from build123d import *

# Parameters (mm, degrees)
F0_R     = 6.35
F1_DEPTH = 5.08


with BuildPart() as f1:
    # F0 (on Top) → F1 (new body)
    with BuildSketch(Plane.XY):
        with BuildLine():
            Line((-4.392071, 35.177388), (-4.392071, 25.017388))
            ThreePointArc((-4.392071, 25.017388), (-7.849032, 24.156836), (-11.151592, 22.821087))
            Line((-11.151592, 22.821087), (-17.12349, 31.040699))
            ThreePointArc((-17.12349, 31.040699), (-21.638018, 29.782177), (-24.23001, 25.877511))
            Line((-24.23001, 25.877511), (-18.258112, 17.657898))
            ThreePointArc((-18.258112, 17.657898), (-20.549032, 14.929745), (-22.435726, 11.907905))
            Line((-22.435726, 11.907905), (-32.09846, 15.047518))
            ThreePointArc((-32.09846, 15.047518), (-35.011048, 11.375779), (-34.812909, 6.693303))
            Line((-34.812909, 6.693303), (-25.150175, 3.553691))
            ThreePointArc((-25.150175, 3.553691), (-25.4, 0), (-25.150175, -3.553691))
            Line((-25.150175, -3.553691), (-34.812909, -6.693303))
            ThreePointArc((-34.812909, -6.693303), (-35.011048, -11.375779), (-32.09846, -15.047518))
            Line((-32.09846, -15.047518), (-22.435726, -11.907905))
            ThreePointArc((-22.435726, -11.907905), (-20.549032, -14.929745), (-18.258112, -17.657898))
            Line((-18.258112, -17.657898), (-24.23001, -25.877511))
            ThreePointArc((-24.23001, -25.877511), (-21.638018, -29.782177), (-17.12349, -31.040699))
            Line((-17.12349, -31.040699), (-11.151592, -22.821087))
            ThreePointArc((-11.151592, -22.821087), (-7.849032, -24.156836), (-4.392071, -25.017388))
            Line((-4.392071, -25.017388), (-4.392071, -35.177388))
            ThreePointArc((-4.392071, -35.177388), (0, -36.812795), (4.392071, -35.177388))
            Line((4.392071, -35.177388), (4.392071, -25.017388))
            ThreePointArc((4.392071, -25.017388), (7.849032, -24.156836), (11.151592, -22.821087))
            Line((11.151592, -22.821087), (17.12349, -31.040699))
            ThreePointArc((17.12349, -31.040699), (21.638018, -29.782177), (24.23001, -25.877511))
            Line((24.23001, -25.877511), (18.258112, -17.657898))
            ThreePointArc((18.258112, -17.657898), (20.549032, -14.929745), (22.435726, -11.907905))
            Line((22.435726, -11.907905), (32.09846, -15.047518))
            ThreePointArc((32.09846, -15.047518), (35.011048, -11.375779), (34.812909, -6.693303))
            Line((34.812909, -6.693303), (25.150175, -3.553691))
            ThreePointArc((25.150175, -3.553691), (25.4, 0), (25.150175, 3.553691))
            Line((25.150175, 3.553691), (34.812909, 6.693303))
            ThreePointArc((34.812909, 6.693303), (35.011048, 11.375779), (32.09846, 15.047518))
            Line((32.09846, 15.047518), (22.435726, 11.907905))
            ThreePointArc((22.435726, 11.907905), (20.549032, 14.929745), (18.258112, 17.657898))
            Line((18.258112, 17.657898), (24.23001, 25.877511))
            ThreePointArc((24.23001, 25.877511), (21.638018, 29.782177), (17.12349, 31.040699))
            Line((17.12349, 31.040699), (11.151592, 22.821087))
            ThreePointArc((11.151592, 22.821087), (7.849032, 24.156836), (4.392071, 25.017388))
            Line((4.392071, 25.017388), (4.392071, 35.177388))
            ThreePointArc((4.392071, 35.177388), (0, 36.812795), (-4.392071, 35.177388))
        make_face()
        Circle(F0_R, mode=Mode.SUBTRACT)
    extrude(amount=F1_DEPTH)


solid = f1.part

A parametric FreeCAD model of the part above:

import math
import FreeCAD as App
import Part
import Sketcher
Q = App.Units.Quantity

doc = App.newDocument("Part")
body = doc.addObject("PartDesign::Body", "Body")

# Sketch on XY plane
sketch1 = body.newObject("Sketcher::SketchObject", "Sketch")
sketch1.AttachmentSupport = (doc.getObject("XY_Plane"), [""])
sketch1.MapMode = "FlatFace"
sketch1.addGeometry([
    Part.LineSegment(App.Vector(-4.392071, 35.177388, 0), App.Vector(-4.392071, 25.017388, 0)),  # 0
    Part.ArcOfCircle(Part.Circle(App.Vector(-0.000018, 0.000049, 0), App.Vector(0, 0, 1), 25.399949), math.radians(99.957395), math.radians(116.042597)),  # 1
    Part.LineSegment(App.Vector(-11.151592, 22.821087, 0), App.Vector(-17.12349, 31.040699, 0)),  # 2
    Part.ArcOfCircle(Part.Circle(App.Vector(-17.690802, 24.3493, 0), App.Vector(0, 0, 1), 6.715405), math.radians(85.153921), math.radians(166.846069)),  # 3
    Part.LineSegment(App.Vector(-24.23001, 25.877511, 0), App.Vector(-18.258112, 17.657898, 0)),  # 4
    Part.ArcOfCircle(Part.Circle(App.Vector(0.000012, -0.000008, 0), App.Vector(0, 0, 1), 25.400014), math.radians(135.957422), math.radians(152.042584)),  # 5
    Part.LineSegment(App.Vector(-22.435726, 11.907905, 0), App.Vector(-32.09846, 15.047518, 0)),  # 6
    Part.ArcOfCircle(Part.Circle(App.Vector(-28.624315, 9.300604, 0), App.Vector(0, 0, 1), 6.715408), math.radians(121.153946), math.radians(202.846054)),  # 7
    Part.LineSegment(App.Vector(-34.812909, 6.693303, 0), App.Vector(-25.150175, 3.553691, 0)),  # 8
    Part.ArcOfCircle(Part.Circle(App.Vector(0.000045, 0, 0), App.Vector(0, 0, 1), 25.400045), math.radians(171.957428), math.radians(188.042572)),  # 9
    Part.LineSegment(App.Vector(-25.150175, -3.553691, 0), App.Vector(-34.812909, -6.693303, 0)),  # 10
    Part.ArcOfCircle(Part.Circle(App.Vector(-28.624315, -9.300604, 0), App.Vector(0, 0, 1), 6.715408), math.radians(157.153946), math.radians(238.846054)),  # 11
    Part.LineSegment(App.Vector(-32.09846, -15.047518, 0), App.Vector(-22.435726, -11.907905, 0)),  # 12
    Part.ArcOfCircle(Part.Circle(App.Vector(0.000012, 0.000008, 0), App.Vector(0, 0, 1), 25.400014), math.radians(-152.042584), math.radians(-135.957422)),  # 13
    Part.LineSegment(App.Vector(-18.258112, -17.657898, 0), App.Vector(-24.23001, -25.877511, 0)),  # 14
    Part.ArcOfCircle(Part.Circle(App.Vector(-17.690802, -24.3493, 0), App.Vector(0, 0, 1), 6.715405), math.radians(-166.846069), math.radians(-85.153921)),  # 15
    Part.LineSegment(App.Vector(-17.12349, -31.040699, 0), App.Vector(-11.151592, -22.821087, 0)),  # 16
    Part.ArcOfCircle(Part.Circle(App.Vector(-0.000018, -0.000049, 0), App.Vector(0, 0, 1), 25.399949), math.radians(-116.042597), math.radians(-99.957395)),  # 17
    Part.LineSegment(App.Vector(-4.392071, -25.017388, 0), App.Vector(-4.392071, -35.177388, 0)),  # 18
    Part.ArcOfCircle(Part.Circle(App.Vector(0, -30.097389, 0), App.Vector(0, 0, 1), 6.715406), math.radians(-130.846073), math.radians(-49.153927)),  # 19
    Part.LineSegment(App.Vector(4.392071, -35.177388, 0), App.Vector(4.392071, -25.017388, 0)),  # 20
    Part.ArcOfCircle(Part.Circle(App.Vector(0.000018, -0.000049, 0), App.Vector(0, 0, 1), 25.399949), math.radians(-80.042605), math.radians(-63.957403)),  # 21
    Part.LineSegment(App.Vector(11.151592, -22.821087, 0), App.Vector(17.12349, -31.040699, 0)),  # 22
    Part.ArcOfCircle(Part.Circle(App.Vector(17.690802, -24.3493, 0), App.Vector(0, 0, 1), 6.715405), math.radians(-94.846079), math.radians(-13.153931)),  # 23
    Part.LineSegment(App.Vector(24.23001, -25.877511, 0), App.Vector(18.258112, -17.657898, 0)),  # 24
    Part.ArcOfCircle(Part.Circle(App.Vector(-0.000012, 0.000008, 0), App.Vector(0, 0, 1), 25.400014), math.radians(-44.042578), math.radians(-27.957416)),  # 25
    Part.LineSegment(App.Vector(22.435726, -11.907905, 0), App.Vector(32.09846, -15.047518, 0)),  # 26
    Part.ArcOfCircle(Part.Circle(App.Vector(28.624315, -9.300604, 0), App.Vector(0, 0, 1), 6.715408), math.radians(-58.846054), math.radians(22.846054)),  # 27
    Part.LineSegment(App.Vector(34.812909, -6.693303, 0), App.Vector(25.150175, -3.553691, 0)),  # 28
    Part.ArcOfCircle(Part.Circle(App.Vector(-0.000045, 0, 0), App.Vector(0, 0, 1), 25.400045), math.radians(-8.042572), math.radians(8.042572)),  # 29
    Part.LineSegment(App.Vector(25.150175, 3.553691, 0), App.Vector(34.812909, 6.693303, 0)),  # 30
    Part.ArcOfCircle(Part.Circle(App.Vector(28.624315, 9.300604, 0), App.Vector(0, 0, 1), 6.715408), math.radians(-22.846054), math.radians(58.846054)),  # 31
    Part.LineSegment(App.Vector(32.09846, 15.047518, 0), App.Vector(22.435726, 11.907905, 0)),  # 32
    Part.ArcOfCircle(Part.Circle(App.Vector(-0.000012, -0.000008, 0), App.Vector(0, 0, 1), 25.400014), math.radians(27.957416), math.radians(44.042578)),  # 33
    Part.LineSegment(App.Vector(18.258112, 17.657898, 0), App.Vector(24.23001, 25.877511, 0)),  # 34
    Part.ArcOfCircle(Part.Circle(App.Vector(17.690802, 24.3493, 0), App.Vector(0, 0, 1), 6.715405), math.radians(13.153931), math.radians(94.846079)),  # 35
    Part.LineSegment(App.Vector(17.12349, 31.040699, 0), App.Vector(11.151592, 22.821087, 0)),  # 36
    Part.ArcOfCircle(Part.Circle(App.Vector(0.000018, 0.000049, 0), App.Vector(0, 0, 1), 25.399949), math.radians(63.957403), math.radians(80.042605)),  # 37
    Part.LineSegment(App.Vector(4.392071, 25.017388, 0), App.Vector(4.392071, 35.177388, 0)),  # 38
    Part.ArcOfCircle(Part.Circle(App.Vector(0, 30.097389, 0), App.Vector(0, 0, 1), 6.715406), math.radians(49.153927), math.radians(130.846073)),  # 39
    Part.Circle(App.Vector(0, 0, 0), App.Vector(0, 0, 1), 6.35),  # 40
], False)
sketch1.addConstraint([
    Sketcher.Constraint("Coincident", 0, 2, 1, 1),
    Sketcher.Constraint("Coincident", 1, 2, 2, 1),
    Sketcher.Constraint("Coincident", 2, 2, 3, 1),
    Sketcher.Constraint("Coincident", 3, 2, 4, 1),
    Sketcher.Constraint("Coincident", 4, 2, 5, 1),
    Sketcher.Constraint("Coincident", 5, 2, 6, 1),
    Sketcher.Constraint("Coincident", 6, 2, 7, 1),
    Sketcher.Constraint("Coincident", 7, 2, 8, 1),
    Sketcher.Constraint("Coincident", 8, 2, 9, 1),
    Sketcher.Constraint("Coincident", 9, 2, 10, 1),
    Sketcher.Constraint("Coincident", 10, 2, 11, 1),
    Sketcher.Constraint("Coincident", 11, 2, 12, 1),
    Sketcher.Constraint("Coincident", 12, 2, 13, 1),
    Sketcher.Constraint("Coincident", 13, 2, 14, 1),
    Sketcher.Constraint("Coincident", 14, 2, 15, 1),
    Sketcher.Constraint("Coincident", 15, 2, 16, 1),
    Sketcher.Constraint("Coincident", 16, 2, 17, 1),
    Sketcher.Constraint("Coincident", 17, 2, 18, 1),
    Sketcher.Constraint("Coincident", 18, 2, 19, 1),
    Sketcher.Constraint("Coincident", 19, 2, 20, 1),
    Sketcher.Constraint("Coincident", 20, 2, 21, 1),
    Sketcher.Constraint("Coincident", 21, 2, 22, 1),
    Sketcher.Constraint("Coincident", 22, 2, 23, 1),
    Sketcher.Constraint("Coincident", 23, 2, 24, 1),
    Sketcher.Constraint("Coincident", 24, 2, 25, 1),
    Sketcher.Constraint("Coincident", 25, 2, 26, 1),
    Sketcher.Constraint("Coincident", 26, 2, 27, 1),
    Sketcher.Constraint("Coincident", 27, 2, 28, 1),
    Sketcher.Constraint("Coincident", 28, 2, 29, 1),
    Sketcher.Constraint("Coincident", 29, 2, 30, 1),
    Sketcher.Constraint("Coincident", 30, 2, 31, 1),
    Sketcher.Constraint("Coincident", 31, 2, 32, 1),
    Sketcher.Constraint("Coincident", 32, 2, 33, 1),
    Sketcher.Constraint("Coincident", 33, 2, 34, 1),
    Sketcher.Constraint("Coincident", 34, 2, 35, 1),
    Sketcher.Constraint("Coincident", 35, 2, 36, 1),
    Sketcher.Constraint("Coincident", 36, 2, 37, 1),
    Sketcher.Constraint("Coincident", 37, 2, 38, 1),
    Sketcher.Constraint("Coincident", 38, 2, 39, 1),
    Sketcher.Constraint("Coincident", 39, 2, 0, 1),
    Sketcher.Constraint("Vertical", 0),
    Sketcher.Constraint("Vertical", 18),
    Sketcher.Constraint("Vertical", 20),
    Sketcher.Constraint("Vertical", 38),
    Sketcher.Constraint("Coincident", 40, 3, -1, 1),
    Sketcher.Constraint("Equal", 7, 11),
    Sketcher.Constraint("Equal", 5, 13),
    Sketcher.Constraint("Equal", 3, 15),
    Sketcher.Constraint("Equal", 1, 17),
    Sketcher.Constraint("Equal", 15, 19),
    Sketcher.Constraint("Equal", 17, 21),
    Sketcher.Constraint("Equal", 19, 23),
    Sketcher.Constraint("Equal", 13, 25),
    Sketcher.Constraint("Equal", 11, 27),
    Sketcher.Constraint("Equal", 9, 29),
    Sketcher.Constraint("Equal", 27, 31),
    Sketcher.Constraint("Equal", 25, 33),
    Sketcher.Constraint("Equal", 23, 35),
    Sketcher.Constraint("Equal", 21, 37),
    Sketcher.Constraint("Equal", 35, 39),
    Sketcher.Constraint("Symmetric", 1, 3, 21, 3, -1, 1),
    Sketcher.Constraint("Symmetric", 3, 3, 23, 3, -1, 1),
    Sketcher.Constraint("Symmetric", 5, 3, 25, 3, -1, 1),
    Sketcher.Constraint("Symmetric", 7, 3, 27, 3, -1, 1),
    Sketcher.Constraint("Symmetric", 9, 3, 29, 3, -1, 1),
    Sketcher.Constraint("Symmetric", 11, 3, 31, 3, -1, 1),
    Sketcher.Constraint("Symmetric", 13, 3, 33, 3, -1, 1),
    Sketcher.Constraint("Symmetric", 15, 3, 35, 3, -1, 1),
    Sketcher.Constraint("Symmetric", 17, 3, 37, 3, -1, 1),
    Sketcher.Constraint("Symmetric", 19, 3, 39, 3, -1, 1),
    Sketcher.Constraint("Symmetric", 17, 3, 21, 3, -2),
    Sketcher.Constraint("Symmetric", 15, 3, 23, 3, -2),
    Sketcher.Constraint("Symmetric", 13, 3, 25, 3, -2),
    Sketcher.Constraint("Symmetric", 11, 3, 27, 3, -2),
    Sketcher.Constraint("Symmetric", 18, 2, 19, 2, -2),
    Sketcher.Constraint("Symmetric", 9, 2, 28, 2, -2),
    Sketcher.Constraint("Parallel", 2, 4),
    Sketcher.Constraint("Parallel", 6, 8),
    Sketcher.Constraint("Parallel", 10, 12),
    Sketcher.Constraint("Parallel", 14, 16),
    Sketcher.Constraint("Parallel", 4, 22),
    Sketcher.Constraint("Parallel", 22, 24),
    Sketcher.Constraint("Parallel", 8, 26),
    Sketcher.Constraint("Parallel", 26, 28),
    Sketcher.Constraint("Parallel", 12, 30),
    Sketcher.Constraint("Parallel", 30, 32),
    Sketcher.Constraint("Parallel", 16, 34),
    Sketcher.Constraint("Parallel", 34, 36),
    Sketcher.Constraint("Horizontal", 16, 2, 21, 2),
    Sketcher.Constraint("Horizontal", 15, 2, 22, 2),
    Sketcher.Constraint("Horizontal", 14, 2, 23, 2),
    Sketcher.Constraint("Horizontal", 12, 2, 25, 2),
    Sketcher.Constraint("Horizontal", 11, 2, 26, 2),
    Sketcher.Constraint("Horizontal", 8, 2, 29, 2),
    Sketcher.Constraint("Horizontal", 6, 2, 31, 2),
    Sketcher.Constraint("Horizontal", 4, 2, 33, 2),
    Sketcher.Constraint("Horizontal", 2, 2, 35, 2),
    Sketcher.Constraint("Horizontal", 0, 2, 37, 2),
    Sketcher.Constraint("Vertical", 8, 2, 9, 2),
    Sketcher.Constraint("Vertical", 6, 2, 11, 2),
    Sketcher.Constraint("Vertical", 4, 2, 13, 2),
    Sketcher.Constraint("Vertical", 2, 2, 15, 2),
    Sketcher.Constraint("Vertical", 0, 2, 17, 2),
    Sketcher.Constraint("Equal", 2, 4),
    Sketcher.Constraint("Equal", 4, 6),
    Sketcher.Constraint("Equal", 6, 8),
    Sketcher.Constraint("Diameter", 40, Q("0.5 in")),
    Sketcher.Constraint("DistanceY", 0, 2, 0, 1, Q("0.4 in")),
    Sketcher.Constraint("Angle", 2, Q("126.000001 deg")),
    Sketcher.Constraint("Angle", 6, Q("161.999998 deg")),
    Sketcher.Constraint("Distance", 2, Q("0.4 in")),
    Sketcher.Constraint("Radius", 1, Q("25.399949 mm")),
    Sketcher.Constraint("Radius", 7, Q("6.715408 mm")),
    Sketcher.Constraint("Radius", 3, Q("6.715405 mm")),
    Sketcher.Constraint("Radius", 5, Q("25.400014 mm")),
    Sketcher.Constraint("Radius", 9, Q("25.400045 mm")),
    Sketcher.Constraint("DistanceY", -1, 1, 3, 3, Q("24.3493 mm")),
    Sketcher.Constraint("DistanceY", -1, 1, 2, 2, Q("31.040699 mm")),
    Sketcher.Constraint("DistanceY", 19, 3, -1, 1, Q("30.097389 mm")),
    Sketcher.Constraint("DistanceX", 0, 2, -1, 1, Q("4.392071 mm")),
    Sketcher.Constraint("DistanceX", 2, 2, -1, 1, Q("17.12349 mm")),
    Sketcher.Constraint("DistanceX", 3, 2, -1, 1, Q("24.23001 mm")),
    Sketcher.Constraint("DistanceX", 6, 2, -1, 1, Q("32.09846 mm")),
    Sketcher.Constraint("DistanceX", 7, 2, -1, 1, Q("34.812909 mm")),
    Sketcher.Constraint("DistanceY", -1, 1, 8, 2, Q("3.553691 mm")),
    Sketcher.Constraint("DistanceX", 7, 3, -1, 1, Q("28.624315 mm")),
])
pad1 = body.newObject("PartDesign::Pad", "Pad")
pad1.Profile = sketch1
pad1.Length = Q("0.2 in")

doc.recompute()
